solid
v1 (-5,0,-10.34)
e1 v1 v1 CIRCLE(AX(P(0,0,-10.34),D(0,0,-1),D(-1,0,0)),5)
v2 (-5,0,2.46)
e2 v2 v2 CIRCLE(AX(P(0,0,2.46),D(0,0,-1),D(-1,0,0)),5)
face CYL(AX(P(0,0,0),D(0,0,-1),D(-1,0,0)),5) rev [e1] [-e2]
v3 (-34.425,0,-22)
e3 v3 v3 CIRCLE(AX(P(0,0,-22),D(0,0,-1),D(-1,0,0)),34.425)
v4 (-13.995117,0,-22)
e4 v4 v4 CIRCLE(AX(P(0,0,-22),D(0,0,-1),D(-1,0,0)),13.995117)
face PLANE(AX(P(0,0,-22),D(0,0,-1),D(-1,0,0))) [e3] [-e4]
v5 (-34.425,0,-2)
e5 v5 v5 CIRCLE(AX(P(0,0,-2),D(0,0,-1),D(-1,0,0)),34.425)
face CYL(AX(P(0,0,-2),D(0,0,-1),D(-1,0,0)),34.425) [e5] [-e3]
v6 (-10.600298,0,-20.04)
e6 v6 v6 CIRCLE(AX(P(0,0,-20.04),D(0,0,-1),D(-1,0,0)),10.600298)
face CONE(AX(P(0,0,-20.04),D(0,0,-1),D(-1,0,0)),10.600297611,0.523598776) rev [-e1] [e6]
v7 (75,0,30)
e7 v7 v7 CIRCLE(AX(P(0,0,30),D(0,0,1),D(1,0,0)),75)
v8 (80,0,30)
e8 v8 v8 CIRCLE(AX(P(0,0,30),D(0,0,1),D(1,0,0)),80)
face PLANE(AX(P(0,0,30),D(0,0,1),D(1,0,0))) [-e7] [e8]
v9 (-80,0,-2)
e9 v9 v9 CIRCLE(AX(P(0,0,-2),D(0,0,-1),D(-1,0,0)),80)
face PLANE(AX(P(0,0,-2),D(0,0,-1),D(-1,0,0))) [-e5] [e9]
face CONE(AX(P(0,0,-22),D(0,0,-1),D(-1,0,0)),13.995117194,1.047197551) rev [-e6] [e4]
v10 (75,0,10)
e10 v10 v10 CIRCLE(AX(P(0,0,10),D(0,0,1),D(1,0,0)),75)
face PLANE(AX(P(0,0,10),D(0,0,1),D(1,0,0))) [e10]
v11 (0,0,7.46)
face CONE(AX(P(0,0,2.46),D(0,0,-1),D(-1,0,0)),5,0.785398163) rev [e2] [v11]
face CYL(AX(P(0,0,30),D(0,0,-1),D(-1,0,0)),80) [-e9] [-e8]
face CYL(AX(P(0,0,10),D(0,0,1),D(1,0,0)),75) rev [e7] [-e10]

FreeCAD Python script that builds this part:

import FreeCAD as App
import Part
import Sketcher
Q = App.Units.Quantity

doc = App.newDocument("Part")
body = doc.addObject("PartDesign::Body", "Body")

sketch1 = doc.addObject("Sketcher::SketchObject", "Sketch")
body.addObject(sketch1)
sketch1.AttachmentSupport = (doc.XY_Plane, [""])
sketch1.MapMode = "FlatFace"
sketch1.addGeometry(Part.Circle(App.Vector(0, 0, 0), App.Vector(0, 0, 1), 80), False)
sketch1.addConstraint([
    Sketcher.Constraint("Coincident", 0, 3, -1, 1),
    Sketcher.Constraint("Diameter", 0, 160.0),
])
pad1 = doc.addObject("PartDesign::Pad", "Pad")
body.addObject(pad1)
pad1.Profile = sketch1
pad1.Length = 30

sketch2 = doc.addObject("Sketcher::SketchObject", "Sketch001")
body.addObject(sketch2)
sketch2.AttachmentSupport = (doc.XY_Plane, [""])
sketch2.MapMode = "FlatFace"
sketch2.AttachmentOffset = App.Placement(App.Vector(0, 0, 30), App.Rotation())
sketch2.addGeometry(Part.Circle(App.Vector(0, 0, 0), App.Vector(0, 0, 1), 75), False)
sketch2.addConstraint([
    Sketcher.Constraint("Coincident", 0, 3, -1, 1),
    Sketcher.Constraint("Diameter", 0, 150.0),
])
pocket1 = doc.addObject("PartDesign::Pocket", "Pocket")
body.addObject(pocket1)
pocket1.Profile = sketch2
pocket1.Length = 20

sketch3 = doc.addObject("Sketcher::SketchObject", "Sketch002")
body.addObject(sketch3)
sketch3.AttachmentSupport = (doc.XY_Plane, [""])
sketch3.MapMode = "FlatFace"
sketch3.AttachmentOffset = App.Placement(App.Vector(0, 0, -22), App.Rotation())
sketch3.addGeometry(Part.Circle(App.Vector(0, 0, 0), App.Vector(0, 0, 1), 80), False)
sketch3.addConstraint([
    Sketcher.Constraint("Coincident", 0, 3, -1, 1),
    Sketcher.Constraint("Diameter", 0, 160.0),
])
pad2 = doc.addObject("PartDesign::Pad", "Pad001")
body.addObject(pad2)
pad2.Profile = sketch3
pad2.Length = 22

sketch4 = doc.addObject("Sketcher::SketchObject", "Sketch003")
body.addObject(sketch4)
sketch4.AttachmentSupport = (doc.XZ_Plane, [""])
sketch4.MapMode = "FlatFace"
sketch4.addGeometry([
    Part.LineSegment(App.Vector(0, 7.5, 0), App.Vector(0, -22, 0)),
    Part.LineSegment(App.Vector(0, -22, 0), App.Vector(-14, -22, 0)),
    Part.LineSegment(App.Vector(-14, -22, 0), App.Vector(-10.6, -20, 0)),
    Part.LineSegment(App.Vector(-10.6, -20, 0), App.Vector(-5, -10.3, 0)),
    Part.LineSegment(App.Vector(-5, -10.3, 0), App.Vector(-5, 2.5, 0)),
    Part.LineSegment(App.Vector(-5, 2.5, 0), App.Vector(0, 7.5, 0)),
], False)
sketch4.addConstraint([
    Sketcher.Constraint("Coincident", 0, 2, 1, 1),
    Sketcher.Constraint("Coincident", 1, 2, 2, 1),
    Sketcher.Constraint("Coincident", 2, 2, 3, 1),
    Sketcher.Constraint("Coincident", 3, 2, 4, 1),
    Sketcher.Constraint("Coincident", 4, 2, 5, 1),
    Sketcher.Constraint("Coincident", 5, 2, 0, 1),
    Sketcher.Constraint("Vertical", 0),
    Sketcher.Constraint("Horizontal", 1),
    Sketcher.Constraint("Vertical", 4),
    Sketcher.Constraint("PointOnObject", 0, 2, -2),
    Sketcher.Constraint("Angle", 2, Q("30 deg")),
    Sketcher.Constraint("Angle", 3, Q("60 deg")),
    Sketcher.Constraint("Angle", 5, Q("45 deg")),
    Sketcher.Constraint("DistanceY", 4, 1, 4, 2, 12.8),
    Sketcher.Constraint("DistanceY", 0, 2, -1, 1, 22.0),
    Sketcher.Constraint("DistanceX", 3, 2, -1, 1, 5.0),
    Sketcher.Constraint("DistanceY", 0, 2, 0, 1, 29.46),
    Sketcher.Constraint("DistanceY", 2, 2, 3, 2, 9.7),
])
groove = doc.addObject("PartDesign::Groove", "Groove")
body.addObject(groove)
groove.Profile = sketch4
groove.ReferenceAxis = (sketch4, ["V_Axis"])
groove.Angle = 360

sketch5 = doc.addObject("Sketcher::SketchObject", "Sketch004")
body.addObject(sketch5)
sketch5.AttachmentSupport = (doc.XY_Plane, [""])
sketch5.MapMode = "FlatFace"
sketch5.AttachmentOffset = App.Placement(App.Vector(0, 0, -22), App.Rotation())
sketch5.addGeometry([
    Part.Circle(App.Vector(0, 0, 0), App.Vector(0, 0, 1), 80),
    Part.Circle(App.Vector(0, 0, 0), App.Vector(0, 0, 1), 34),
], False)
sketch5.addConstraint([
    Sketcher.Constraint("Coincident", 0, 3, -1, 1),
    Sketcher.Constraint("Coincident", 1, 3, -1, 1),
    Sketcher.Constraint("Diameter", 0, 160.0),
    Sketcher.Constraint("Diameter", 1, 68.85),
])
pocket2 = doc.addObject("PartDesign::Pocket", "Pocket001")
body.addObject(pocket2)
pocket2.Profile = sketch5
pocket2.Length = 20
pocket2.Reversed = True

doc.recompute()
